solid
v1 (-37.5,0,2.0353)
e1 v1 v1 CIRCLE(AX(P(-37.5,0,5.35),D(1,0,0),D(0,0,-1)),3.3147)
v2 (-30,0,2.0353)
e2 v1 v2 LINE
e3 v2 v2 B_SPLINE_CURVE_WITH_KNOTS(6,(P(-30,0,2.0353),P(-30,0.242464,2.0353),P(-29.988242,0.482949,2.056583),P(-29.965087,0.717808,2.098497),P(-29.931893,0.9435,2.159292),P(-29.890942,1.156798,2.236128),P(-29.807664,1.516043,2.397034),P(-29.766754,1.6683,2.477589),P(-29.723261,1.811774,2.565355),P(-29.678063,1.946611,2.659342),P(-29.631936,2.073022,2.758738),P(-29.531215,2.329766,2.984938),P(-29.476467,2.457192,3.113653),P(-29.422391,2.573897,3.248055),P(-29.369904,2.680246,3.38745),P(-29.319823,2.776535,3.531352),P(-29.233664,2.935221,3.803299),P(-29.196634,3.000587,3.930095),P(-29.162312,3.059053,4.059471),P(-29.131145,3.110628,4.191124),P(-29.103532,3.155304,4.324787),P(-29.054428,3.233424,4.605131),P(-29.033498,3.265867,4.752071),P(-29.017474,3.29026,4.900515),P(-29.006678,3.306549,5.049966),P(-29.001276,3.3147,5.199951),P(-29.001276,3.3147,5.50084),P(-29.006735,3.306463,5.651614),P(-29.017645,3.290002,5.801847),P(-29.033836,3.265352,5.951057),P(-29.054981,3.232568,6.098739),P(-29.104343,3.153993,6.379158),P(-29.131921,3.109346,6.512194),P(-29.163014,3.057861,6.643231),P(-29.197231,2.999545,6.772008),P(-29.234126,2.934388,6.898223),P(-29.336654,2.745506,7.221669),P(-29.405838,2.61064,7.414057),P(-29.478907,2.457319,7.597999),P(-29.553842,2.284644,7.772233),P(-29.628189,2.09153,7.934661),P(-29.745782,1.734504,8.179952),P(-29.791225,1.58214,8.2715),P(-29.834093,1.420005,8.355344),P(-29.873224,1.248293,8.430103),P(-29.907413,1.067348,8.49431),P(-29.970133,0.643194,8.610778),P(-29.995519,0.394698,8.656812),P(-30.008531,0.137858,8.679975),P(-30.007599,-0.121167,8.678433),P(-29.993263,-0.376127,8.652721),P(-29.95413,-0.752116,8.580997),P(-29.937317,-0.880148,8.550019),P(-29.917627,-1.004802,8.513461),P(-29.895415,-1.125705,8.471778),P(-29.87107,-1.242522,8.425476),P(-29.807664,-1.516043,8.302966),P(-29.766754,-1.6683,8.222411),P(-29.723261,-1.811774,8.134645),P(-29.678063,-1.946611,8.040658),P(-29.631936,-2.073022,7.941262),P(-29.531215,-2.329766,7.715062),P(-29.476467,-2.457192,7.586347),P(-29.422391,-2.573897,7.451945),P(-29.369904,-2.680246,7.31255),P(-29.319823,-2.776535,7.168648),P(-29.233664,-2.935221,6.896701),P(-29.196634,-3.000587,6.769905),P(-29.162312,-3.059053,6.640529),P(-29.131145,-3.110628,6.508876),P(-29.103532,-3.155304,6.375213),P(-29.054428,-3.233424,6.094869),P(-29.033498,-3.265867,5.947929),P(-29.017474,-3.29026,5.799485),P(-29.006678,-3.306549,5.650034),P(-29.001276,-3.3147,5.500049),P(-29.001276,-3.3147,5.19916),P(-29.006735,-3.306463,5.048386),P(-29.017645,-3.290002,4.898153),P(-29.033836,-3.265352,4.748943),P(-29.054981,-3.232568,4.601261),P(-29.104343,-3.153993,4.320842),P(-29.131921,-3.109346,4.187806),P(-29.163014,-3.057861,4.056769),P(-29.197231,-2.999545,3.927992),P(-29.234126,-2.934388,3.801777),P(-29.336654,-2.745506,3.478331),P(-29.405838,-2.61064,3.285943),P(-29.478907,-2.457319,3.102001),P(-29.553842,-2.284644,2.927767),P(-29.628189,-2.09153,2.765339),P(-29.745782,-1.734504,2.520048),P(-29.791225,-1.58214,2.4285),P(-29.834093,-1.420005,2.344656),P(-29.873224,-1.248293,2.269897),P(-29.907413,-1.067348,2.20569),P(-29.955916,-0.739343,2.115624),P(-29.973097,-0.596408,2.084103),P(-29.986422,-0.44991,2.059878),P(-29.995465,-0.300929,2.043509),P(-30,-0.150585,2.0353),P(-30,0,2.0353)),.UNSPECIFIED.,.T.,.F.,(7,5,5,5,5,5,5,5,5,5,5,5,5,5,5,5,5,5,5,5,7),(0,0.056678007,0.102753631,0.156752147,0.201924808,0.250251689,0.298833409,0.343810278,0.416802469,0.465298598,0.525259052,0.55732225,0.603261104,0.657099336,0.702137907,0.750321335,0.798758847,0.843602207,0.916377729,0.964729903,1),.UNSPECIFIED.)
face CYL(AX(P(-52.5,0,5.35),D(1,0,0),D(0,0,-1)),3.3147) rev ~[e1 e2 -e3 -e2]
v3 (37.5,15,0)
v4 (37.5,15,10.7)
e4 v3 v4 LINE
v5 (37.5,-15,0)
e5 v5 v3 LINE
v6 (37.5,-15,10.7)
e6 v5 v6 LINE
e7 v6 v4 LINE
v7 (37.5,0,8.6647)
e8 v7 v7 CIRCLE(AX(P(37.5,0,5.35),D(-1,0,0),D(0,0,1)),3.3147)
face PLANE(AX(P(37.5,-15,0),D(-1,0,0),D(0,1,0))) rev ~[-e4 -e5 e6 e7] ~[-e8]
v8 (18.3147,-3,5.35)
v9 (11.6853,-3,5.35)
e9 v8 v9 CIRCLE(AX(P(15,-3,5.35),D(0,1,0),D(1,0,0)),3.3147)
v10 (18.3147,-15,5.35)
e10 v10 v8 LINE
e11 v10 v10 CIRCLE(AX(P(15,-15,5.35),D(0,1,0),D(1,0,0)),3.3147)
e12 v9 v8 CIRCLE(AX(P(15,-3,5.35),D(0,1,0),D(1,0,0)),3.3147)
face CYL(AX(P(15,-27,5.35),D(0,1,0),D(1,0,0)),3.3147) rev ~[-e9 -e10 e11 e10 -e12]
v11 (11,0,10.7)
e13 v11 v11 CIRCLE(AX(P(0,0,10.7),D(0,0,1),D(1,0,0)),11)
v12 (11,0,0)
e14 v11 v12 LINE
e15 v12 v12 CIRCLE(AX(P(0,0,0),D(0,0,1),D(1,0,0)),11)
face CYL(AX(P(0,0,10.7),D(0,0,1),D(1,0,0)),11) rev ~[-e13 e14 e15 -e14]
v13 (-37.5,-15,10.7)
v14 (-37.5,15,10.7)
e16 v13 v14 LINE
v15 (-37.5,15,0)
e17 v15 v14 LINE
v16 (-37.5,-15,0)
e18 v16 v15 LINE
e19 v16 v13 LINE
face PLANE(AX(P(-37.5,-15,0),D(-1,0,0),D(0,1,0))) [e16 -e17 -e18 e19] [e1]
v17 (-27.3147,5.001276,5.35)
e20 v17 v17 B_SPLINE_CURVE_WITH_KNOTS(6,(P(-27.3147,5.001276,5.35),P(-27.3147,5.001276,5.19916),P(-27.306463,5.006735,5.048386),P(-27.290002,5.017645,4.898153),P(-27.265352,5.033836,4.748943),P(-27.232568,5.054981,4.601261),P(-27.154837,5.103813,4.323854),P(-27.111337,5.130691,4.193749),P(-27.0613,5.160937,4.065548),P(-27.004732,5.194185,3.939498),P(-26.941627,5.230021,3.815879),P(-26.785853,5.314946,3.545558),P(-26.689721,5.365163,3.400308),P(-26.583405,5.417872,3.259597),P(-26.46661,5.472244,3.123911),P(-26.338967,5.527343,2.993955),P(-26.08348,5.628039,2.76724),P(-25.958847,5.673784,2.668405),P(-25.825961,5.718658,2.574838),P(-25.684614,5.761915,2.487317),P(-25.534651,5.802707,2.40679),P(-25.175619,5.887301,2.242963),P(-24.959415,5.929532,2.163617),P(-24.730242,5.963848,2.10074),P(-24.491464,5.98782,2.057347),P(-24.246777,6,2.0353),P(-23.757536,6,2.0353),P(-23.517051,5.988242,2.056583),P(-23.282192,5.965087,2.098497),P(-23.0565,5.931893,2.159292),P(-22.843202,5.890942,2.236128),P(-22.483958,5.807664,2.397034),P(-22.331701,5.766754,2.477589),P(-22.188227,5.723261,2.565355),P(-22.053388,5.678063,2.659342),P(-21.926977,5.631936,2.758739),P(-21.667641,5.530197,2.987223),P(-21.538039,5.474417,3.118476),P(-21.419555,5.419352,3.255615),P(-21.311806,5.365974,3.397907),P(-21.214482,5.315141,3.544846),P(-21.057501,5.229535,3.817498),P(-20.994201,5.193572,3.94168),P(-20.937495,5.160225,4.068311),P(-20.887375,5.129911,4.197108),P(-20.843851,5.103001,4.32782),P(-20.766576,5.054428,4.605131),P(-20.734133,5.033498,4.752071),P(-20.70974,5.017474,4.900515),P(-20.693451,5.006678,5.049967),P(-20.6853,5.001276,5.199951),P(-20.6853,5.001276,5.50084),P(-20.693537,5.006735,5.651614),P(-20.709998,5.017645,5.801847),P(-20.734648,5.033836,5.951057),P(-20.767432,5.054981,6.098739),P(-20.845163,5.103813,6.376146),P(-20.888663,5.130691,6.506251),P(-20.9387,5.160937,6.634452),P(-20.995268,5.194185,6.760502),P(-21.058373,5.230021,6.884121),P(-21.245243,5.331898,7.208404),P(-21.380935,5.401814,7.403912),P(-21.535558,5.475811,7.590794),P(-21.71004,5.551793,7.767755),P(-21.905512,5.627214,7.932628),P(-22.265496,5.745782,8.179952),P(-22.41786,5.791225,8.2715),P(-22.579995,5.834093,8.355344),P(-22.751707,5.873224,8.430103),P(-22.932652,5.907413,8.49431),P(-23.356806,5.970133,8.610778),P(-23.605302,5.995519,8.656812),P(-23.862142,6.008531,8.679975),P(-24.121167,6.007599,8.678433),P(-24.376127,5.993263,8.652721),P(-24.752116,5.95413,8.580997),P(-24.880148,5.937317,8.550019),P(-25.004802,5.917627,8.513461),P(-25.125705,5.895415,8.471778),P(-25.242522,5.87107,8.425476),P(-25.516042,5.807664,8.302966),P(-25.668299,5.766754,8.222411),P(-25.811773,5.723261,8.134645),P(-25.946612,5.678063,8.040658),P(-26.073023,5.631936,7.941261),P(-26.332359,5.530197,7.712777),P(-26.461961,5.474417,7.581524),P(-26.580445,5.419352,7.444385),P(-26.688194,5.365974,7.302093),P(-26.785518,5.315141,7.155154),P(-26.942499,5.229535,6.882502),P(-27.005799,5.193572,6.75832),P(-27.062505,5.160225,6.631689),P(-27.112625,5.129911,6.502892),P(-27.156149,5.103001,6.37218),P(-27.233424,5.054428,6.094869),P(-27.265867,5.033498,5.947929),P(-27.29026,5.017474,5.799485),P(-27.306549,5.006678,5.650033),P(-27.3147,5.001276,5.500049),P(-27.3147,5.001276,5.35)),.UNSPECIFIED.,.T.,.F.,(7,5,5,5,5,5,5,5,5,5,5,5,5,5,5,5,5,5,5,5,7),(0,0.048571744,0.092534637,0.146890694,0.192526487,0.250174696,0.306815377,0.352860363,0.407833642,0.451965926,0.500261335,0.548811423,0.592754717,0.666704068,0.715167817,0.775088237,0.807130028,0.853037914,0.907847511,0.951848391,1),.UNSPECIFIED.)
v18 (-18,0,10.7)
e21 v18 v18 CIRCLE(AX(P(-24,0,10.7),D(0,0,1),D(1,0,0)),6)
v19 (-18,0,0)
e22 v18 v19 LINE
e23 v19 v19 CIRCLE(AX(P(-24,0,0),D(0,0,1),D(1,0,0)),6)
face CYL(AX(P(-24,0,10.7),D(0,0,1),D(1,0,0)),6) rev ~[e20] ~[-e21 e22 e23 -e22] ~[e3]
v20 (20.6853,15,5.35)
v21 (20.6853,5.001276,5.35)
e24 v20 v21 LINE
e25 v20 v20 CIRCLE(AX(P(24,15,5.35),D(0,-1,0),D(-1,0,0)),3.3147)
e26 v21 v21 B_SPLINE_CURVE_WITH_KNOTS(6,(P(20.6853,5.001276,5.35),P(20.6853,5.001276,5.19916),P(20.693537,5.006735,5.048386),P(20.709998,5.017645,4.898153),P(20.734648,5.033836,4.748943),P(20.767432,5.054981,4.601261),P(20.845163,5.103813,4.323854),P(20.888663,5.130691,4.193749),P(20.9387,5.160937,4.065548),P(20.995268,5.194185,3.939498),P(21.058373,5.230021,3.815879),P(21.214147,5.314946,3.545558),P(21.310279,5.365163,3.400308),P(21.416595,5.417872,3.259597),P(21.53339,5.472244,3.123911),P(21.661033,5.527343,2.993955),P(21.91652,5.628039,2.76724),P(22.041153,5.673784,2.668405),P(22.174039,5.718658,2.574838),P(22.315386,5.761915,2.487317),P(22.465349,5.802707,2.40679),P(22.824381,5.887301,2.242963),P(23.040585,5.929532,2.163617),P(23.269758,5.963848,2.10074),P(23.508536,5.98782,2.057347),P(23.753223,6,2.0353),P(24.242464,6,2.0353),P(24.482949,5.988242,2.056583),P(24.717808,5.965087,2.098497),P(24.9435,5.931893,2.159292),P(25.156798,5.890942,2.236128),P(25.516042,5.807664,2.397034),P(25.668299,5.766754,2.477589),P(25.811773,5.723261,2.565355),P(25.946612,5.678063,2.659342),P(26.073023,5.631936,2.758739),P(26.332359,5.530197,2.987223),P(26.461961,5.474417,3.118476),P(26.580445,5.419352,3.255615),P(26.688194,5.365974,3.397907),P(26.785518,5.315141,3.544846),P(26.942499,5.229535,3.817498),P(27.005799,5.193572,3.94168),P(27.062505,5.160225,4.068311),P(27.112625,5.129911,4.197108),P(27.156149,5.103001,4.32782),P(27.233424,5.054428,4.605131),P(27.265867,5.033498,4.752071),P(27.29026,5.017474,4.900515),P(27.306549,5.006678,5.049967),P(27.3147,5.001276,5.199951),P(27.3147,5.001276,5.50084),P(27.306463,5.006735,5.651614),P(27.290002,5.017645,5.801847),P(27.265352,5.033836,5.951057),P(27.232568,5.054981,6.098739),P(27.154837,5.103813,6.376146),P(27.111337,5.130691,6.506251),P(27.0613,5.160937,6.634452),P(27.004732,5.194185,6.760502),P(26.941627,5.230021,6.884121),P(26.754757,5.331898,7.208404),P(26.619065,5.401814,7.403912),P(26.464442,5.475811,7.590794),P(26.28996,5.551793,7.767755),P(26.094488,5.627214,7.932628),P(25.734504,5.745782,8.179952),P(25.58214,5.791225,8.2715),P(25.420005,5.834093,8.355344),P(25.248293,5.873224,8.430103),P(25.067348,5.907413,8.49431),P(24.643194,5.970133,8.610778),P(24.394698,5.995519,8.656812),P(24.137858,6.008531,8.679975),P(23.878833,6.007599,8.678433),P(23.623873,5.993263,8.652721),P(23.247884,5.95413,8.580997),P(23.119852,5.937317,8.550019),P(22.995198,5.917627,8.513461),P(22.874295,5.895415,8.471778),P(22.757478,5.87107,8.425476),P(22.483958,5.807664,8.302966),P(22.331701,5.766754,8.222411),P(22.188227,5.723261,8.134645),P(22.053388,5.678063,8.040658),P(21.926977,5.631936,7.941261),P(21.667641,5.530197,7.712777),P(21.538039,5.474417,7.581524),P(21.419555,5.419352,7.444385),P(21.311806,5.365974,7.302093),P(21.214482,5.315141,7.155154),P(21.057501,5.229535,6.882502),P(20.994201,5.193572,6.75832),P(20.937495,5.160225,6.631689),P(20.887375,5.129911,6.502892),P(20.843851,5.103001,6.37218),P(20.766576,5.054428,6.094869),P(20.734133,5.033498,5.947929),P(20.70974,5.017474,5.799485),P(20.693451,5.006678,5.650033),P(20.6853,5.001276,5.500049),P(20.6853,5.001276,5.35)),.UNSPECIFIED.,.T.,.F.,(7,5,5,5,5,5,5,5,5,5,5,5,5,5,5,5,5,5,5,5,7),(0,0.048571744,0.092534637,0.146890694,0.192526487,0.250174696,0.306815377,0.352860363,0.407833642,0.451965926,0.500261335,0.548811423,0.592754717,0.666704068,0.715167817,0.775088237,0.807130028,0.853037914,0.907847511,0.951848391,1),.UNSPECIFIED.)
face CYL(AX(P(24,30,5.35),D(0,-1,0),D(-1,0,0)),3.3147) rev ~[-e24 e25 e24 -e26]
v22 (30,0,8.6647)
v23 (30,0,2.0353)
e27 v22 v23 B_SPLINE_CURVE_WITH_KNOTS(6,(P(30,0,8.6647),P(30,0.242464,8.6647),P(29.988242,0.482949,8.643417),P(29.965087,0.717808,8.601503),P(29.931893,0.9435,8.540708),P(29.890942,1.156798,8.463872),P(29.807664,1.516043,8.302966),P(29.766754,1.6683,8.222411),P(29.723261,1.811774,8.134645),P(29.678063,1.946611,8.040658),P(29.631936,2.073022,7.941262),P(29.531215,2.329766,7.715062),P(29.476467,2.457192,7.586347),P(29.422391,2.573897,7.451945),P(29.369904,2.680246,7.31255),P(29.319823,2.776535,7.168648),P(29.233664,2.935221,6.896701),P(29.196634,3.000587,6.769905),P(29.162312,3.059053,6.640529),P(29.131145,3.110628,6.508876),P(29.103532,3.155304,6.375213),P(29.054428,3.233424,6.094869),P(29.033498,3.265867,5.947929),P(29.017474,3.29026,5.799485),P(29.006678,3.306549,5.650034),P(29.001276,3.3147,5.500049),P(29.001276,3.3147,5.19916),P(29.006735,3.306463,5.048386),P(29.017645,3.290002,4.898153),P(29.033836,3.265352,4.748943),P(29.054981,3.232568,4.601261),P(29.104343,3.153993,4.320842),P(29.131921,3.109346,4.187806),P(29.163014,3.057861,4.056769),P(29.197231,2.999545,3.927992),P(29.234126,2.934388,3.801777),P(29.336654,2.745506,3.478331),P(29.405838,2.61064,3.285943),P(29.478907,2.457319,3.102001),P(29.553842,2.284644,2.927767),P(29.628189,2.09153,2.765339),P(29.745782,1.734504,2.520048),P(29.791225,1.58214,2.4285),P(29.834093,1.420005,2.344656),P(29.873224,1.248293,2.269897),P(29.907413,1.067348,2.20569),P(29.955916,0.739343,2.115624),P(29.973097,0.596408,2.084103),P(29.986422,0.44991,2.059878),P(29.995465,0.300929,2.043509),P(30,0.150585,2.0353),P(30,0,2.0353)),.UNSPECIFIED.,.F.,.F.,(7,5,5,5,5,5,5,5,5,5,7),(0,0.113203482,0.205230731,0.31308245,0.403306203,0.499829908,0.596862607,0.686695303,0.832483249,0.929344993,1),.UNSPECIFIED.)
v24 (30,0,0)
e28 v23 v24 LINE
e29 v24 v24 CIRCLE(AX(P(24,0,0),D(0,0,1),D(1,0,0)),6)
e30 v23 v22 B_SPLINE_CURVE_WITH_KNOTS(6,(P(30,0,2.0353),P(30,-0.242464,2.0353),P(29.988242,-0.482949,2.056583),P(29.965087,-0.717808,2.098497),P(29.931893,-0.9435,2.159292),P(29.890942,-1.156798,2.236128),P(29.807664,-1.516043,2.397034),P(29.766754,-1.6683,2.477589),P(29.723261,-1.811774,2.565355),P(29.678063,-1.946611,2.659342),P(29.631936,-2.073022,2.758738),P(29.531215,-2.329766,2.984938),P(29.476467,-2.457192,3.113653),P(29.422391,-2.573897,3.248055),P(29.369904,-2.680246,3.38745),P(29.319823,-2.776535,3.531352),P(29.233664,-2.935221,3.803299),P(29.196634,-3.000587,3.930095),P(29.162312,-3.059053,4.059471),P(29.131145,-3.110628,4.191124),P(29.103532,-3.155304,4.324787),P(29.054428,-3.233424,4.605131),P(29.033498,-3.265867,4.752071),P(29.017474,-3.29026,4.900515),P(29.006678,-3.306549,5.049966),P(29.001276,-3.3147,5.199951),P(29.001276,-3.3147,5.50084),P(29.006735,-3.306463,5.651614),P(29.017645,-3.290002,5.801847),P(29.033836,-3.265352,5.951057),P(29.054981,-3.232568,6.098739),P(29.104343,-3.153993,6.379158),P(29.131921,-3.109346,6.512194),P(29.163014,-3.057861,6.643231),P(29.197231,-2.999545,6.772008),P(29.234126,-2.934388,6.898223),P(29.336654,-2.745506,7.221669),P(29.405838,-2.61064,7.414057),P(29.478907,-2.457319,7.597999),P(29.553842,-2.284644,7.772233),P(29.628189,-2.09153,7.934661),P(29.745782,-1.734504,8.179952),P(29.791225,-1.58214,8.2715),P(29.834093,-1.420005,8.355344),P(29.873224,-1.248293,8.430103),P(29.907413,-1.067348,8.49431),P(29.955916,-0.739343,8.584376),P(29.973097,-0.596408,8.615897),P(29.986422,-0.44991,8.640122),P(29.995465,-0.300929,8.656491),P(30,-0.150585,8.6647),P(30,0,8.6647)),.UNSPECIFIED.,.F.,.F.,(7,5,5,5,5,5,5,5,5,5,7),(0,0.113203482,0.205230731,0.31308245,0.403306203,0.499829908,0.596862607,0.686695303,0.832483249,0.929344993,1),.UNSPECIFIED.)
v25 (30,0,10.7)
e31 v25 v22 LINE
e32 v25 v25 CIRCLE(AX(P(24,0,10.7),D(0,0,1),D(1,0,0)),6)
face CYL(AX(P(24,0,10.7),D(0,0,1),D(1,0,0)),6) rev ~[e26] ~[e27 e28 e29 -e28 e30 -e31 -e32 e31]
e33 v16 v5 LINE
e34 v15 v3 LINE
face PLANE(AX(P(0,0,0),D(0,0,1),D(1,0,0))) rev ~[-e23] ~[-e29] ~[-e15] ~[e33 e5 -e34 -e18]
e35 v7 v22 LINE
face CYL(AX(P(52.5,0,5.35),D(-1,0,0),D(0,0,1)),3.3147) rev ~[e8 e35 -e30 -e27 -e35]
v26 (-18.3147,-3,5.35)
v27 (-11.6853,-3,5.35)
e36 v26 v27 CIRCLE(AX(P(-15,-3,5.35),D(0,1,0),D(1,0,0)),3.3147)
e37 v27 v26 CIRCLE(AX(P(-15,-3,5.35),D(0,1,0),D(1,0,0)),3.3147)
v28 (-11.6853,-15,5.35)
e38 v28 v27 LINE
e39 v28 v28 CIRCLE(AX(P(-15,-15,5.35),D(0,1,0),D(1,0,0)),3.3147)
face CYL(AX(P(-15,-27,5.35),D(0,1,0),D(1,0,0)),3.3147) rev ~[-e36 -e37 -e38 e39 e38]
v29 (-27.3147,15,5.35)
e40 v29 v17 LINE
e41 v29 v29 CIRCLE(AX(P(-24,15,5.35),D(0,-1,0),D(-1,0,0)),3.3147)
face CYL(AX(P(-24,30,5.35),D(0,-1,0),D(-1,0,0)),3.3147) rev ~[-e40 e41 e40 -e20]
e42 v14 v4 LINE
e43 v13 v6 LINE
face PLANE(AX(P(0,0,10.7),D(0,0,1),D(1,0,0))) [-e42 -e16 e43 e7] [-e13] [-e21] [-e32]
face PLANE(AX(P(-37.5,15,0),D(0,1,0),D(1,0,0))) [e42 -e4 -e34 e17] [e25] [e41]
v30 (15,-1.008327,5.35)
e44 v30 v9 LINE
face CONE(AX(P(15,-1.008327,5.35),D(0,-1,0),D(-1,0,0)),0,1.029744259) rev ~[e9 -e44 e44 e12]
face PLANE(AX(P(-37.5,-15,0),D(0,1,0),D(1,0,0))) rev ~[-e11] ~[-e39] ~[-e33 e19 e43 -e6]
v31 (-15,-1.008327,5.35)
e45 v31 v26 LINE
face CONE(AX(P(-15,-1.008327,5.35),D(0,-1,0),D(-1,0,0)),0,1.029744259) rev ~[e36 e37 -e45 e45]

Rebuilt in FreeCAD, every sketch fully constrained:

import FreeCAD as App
import Part
import Sketcher


def add_polygon(sketch, points):
    """Adds a closed chain of lines whose ends are joined by coincident constraints."""
    first, n = sketch.GeometryCount, len(points)
    for a, b in zip(points, points[1:] + points[:1]):
        sketch.addGeometry(Part.LineSegment(App.Vector(*a, 0), App.Vector(*b, 0)), False)
    for i in range(n):
        sketch.addConstraint(Sketcher.Constraint("Coincident", first + i, 2, first + (i + 1) % n, 1))

doc = App.newDocument("Part")
body = doc.addObject("PartDesign::Body", "Body")

# Sketch on XY plane
sketch1 = body.newObject("Sketcher::SketchObject", "Sketch")
sketch1.AttachmentSupport = (doc.getObject("XY_Plane"), [""])
sketch1.MapMode = "FlatFace"
add_polygon(sketch1, [(-37.5, 15), (-37.5, -15), (37.5, -15), (37.5, 15)])  # lines 0-3
sketch1.addConstraint([
    Sketcher.Constraint("Vertical", 0),
    Sketcher.Constraint("Horizontal", 1),
    Sketcher.Constraint("Vertical", 2),
    Sketcher.Constraint("Horizontal", 3),
    Sketcher.Constraint("Symmetric", 0, 2, 2, 2, -1, 1),
    Sketcher.Constraint("DistanceX", 1, 1, 1, 2, 75.0),
    Sketcher.Constraint("DistanceY", 0, 2, 0, 1, 30.0),
])
pad1 = body.newObject("PartDesign::Pad", "Pad")
pad1.Profile = sketch1
pad1.Length = 10.7

# Sketch on XY plane
sketch2 = body.newObject("Sketcher::SketchObject", "Sketch001")
sketch2.AttachmentSupport = (doc.getObject("XY_Plane"), [""])
sketch2.MapMode = "FlatFace"
sketch2.AttachmentOffset = App.Placement(App.Vector(0, 0, 10.7), App.Rotation())
sketch2.addGeometry([
    Part.Circle(App.Vector(-24, 0, 0), App.Vector(0, 0, 1), 6),
    Part.Circle(App.Vector(24, 0, 0), App.Vector(0, 0, 1), 6),
], False)
sketch2.addConstraint([
    Sketcher.Constraint("Equal", 0, 1),
    Sketcher.Constraint("Symmetric", 0, 3, 1, 3, -1, 1),
    Sketcher.Constraint("PointOnObject", 0, 3, -1),
    Sketcher.Constraint("Diameter", 0, 12.0),
    Sketcher.Constraint("DistanceX", 0, 3, -1, 1, 24.0),
])
pocket1 = body.newObject("PartDesign::Pocket", "Pocket")
pocket1.Profile = sketch2
pocket1.Type = "ThroughAll"

# Sketch on XY plane
sketch3 = body.newObject("Sketcher::SketchObject", "Sketch002")
sketch3.AttachmentSupport = (doc.getObject("XY_Plane"), [""])
sketch3.MapMode = "FlatFace"
sketch3.AttachmentOffset = App.Placement(App.Vector(0, 0, 10.7), App.Rotation())
sketch3.addGeometry(Part.Circle(App.Vector(0, 0, 0), App.Vector(0, 0, 1), 11), False)
sketch3.addConstraint([
    Sketcher.Constraint("Coincident", 0, 3, -1, 1),
    Sketcher.Constraint("Diameter", 0, 22.0),
])
pocket2 = body.newObject("PartDesign::Pocket", "Pocket001")
pocket2.Profile = sketch3
pocket2.Type = "ThroughAll"

# Sketch on XZ plane
sketch4 = body.newObject("Sketcher::SketchObject", "Sketch003")
sketch4.AttachmentSupport = (doc.getObject("XZ_Plane"), [""])
sketch4.MapMode = "FlatFace"
sketch4.AttachmentOffset = App.Placement(App.Vector(0, 0, -15), App.Rotation())
sketch4.addGeometry([
    Part.Circle(App.Vector(-24, 5.35, 0), App.Vector(0, 0, 1), 3.3147),
    Part.Circle(App.Vector(24, 5.35, 0), App.Vector(0, 0, 1), 3.3147),
], False)
sketch4.addConstraint([
    Sketcher.Constraint("Equal", 0, 1),
    Sketcher.Constraint("Symmetric", 0, 3, 1, 3, -2),
    Sketcher.Constraint("DistanceX", 0, 3, -1, 1, 24.0),
    Sketcher.Constraint("Diameter", 0, 6.6294),
    Sketcher.Constraint("DistanceY", -1, 1, 0, 3, 5.35),
])
doc.recompute()
hole = body.newObject("PartDesign::Hole", "Hole")
hole.Profile = sketch4
hole.ThreadType = "None"
hole.Diameter = 6.6294
hole.DepthType = "Dimension"
hole.Depth = 15
hole.DrillPoint = "Angled"
hole.DrillPointAngle = 118
hole.Reversed = True

# Sketch on YZ plane
sketch5 = body.newObject("Sketcher::SketchObject", "Sketch004")
sketch5.AttachmentSupport = (doc.getObject("YZ_Plane"), [""])
sketch5.MapMode = "FlatFace"
sketch5.AttachmentOffset = App.Placement(App.Vector(0, 0, -37.5), App.Rotation())
sketch5.addGeometry(Part.Circle(App.Vector(0, 5.35, 0), App.Vector(0, 0, 1), 3.3147), False)
sketch5.addConstraint([
    Sketcher.Constraint("PointOnObject", 0, 3, -2),
    Sketcher.Constraint("Diameter", 0, 6.6294),
    Sketcher.Constraint("DistanceY", -1, 1, 0, 3, 5.35),
])
doc.recompute()
hole2 = body.newObject("PartDesign::Hole", "Hole001")
hole2.Profile = sketch5
hole2.ThreadType = "None"
hole2.Diameter = 6.6294
hole2.DepthType = "Dimension"
hole2.Depth = 15
hole2.DrillPoint = "Angled"
hole2.DrillPointAngle = 118
hole2.Reversed = True

# Sketch on YZ plane
sketch6 = body.newObject("Sketcher::SketchObject", "Sketch005")
sketch6.AttachmentSupport = (doc.getObject("YZ_Plane"), [""])
sketch6.MapMode = "FlatFace"
sketch6.AttachmentOffset = App.Placement(App.Vector(0, 0, 37.5), App.Rotation())
sketch6.addGeometry(Part.Circle(App.Vector(0, 5.35, 0), App.Vector(0, 0, 1), 3.3147), False)
sketch6.addConstraint([
    Sketcher.Constraint("PointOnObject", 0, 3, -2),
    Sketcher.Constraint("Diameter", 0, 6.6294),
    Sketcher.Constraint("DistanceY", -1, 1, 0, 3, 5.35),
])
doc.recompute()
hole3 = body.newObject("PartDesign::Hole", "Hole002")
hole3.Profile = sketch6
hole3.ThreadType = "None"
hole3.Diameter = 6.6294
hole3.DepthType = "Dimension"
hole3.Depth = 15
hole3.DrillPoint = "Angled"
hole3.DrillPointAngle = 118

# Sketch on XZ plane
sketch7 = body.newObject("Sketcher::SketchObject", "Sketch006")
sketch7.AttachmentSupport = (doc.getObject("XZ_Plane"), [""])
sketch7.MapMode = "FlatFace"
sketch7.AttachmentOffset = App.Placement(App.Vector(0, 0, 15), App.Rotation())
sketch7.addGeometry([
    Part.Circle(App.Vector(-15, 5.35, 0), App.Vector(0, 0, 1), 3.3147),
    Part.Circle(App.Vector(15, 5.35, 0), App.Vector(0, 0, 1), 3.3147),
], False)
sketch7.addConstraint([
    Sketcher.Constraint("Equal", 0, 1),
    Sketcher.Constraint("Symmetric", 0, 3, 1, 3, -2),
    Sketcher.Constraint("DistanceX", 0, 3, -1, 1, 15.0),
    Sketcher.Constraint("Diameter", 0, 6.6294),
    Sketcher.Constraint("DistanceY", -1, 1, 0, 3, 5.35),
])
doc.recompute()
hole4 = body.newObject("PartDesign::Hole", "Hole003")
hole4.Profile = sketch7
hole4.ThreadType = "None"
hole4.Diameter = 6.6294
hole4.DepthType = "Dimension"
hole4.Depth = 12
hole4.DrillPoint = "Angled"
hole4.DrillPointAngle = 118

doc.recompute()
